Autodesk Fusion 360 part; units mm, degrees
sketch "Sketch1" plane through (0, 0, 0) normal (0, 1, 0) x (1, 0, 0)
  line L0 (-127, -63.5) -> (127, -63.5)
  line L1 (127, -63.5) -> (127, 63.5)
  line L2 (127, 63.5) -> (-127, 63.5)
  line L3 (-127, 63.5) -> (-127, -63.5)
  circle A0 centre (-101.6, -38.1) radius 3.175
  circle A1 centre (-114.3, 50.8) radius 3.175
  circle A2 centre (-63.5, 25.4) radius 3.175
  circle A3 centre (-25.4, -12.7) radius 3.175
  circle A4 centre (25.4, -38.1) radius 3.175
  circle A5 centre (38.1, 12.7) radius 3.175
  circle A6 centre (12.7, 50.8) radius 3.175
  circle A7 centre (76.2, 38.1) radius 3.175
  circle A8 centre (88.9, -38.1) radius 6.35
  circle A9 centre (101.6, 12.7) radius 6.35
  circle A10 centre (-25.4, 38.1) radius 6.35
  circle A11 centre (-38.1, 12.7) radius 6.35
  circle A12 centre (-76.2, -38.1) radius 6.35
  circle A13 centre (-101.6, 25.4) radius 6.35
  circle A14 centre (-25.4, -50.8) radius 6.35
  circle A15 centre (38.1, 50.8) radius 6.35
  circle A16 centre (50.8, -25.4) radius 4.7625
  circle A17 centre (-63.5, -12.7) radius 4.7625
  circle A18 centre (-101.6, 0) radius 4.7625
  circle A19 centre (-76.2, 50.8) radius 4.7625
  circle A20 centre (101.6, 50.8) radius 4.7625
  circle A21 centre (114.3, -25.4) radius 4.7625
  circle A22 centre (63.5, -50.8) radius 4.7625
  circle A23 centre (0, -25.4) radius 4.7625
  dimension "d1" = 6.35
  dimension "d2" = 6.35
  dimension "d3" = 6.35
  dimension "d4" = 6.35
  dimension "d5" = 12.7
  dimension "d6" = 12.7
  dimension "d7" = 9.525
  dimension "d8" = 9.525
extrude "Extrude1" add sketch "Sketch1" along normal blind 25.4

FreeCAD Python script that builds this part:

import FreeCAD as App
import Part
import Sketcher
from FreeCAD import Vector
Q = App.Units.Quantity


def add_polygon(sketch, points):
    """Adds a closed chain of lines whose ends are joined by coincident constraints."""
    first, n = sketch.GeometryCount, len(points)
    for a, b in zip(points, points[1:] + points[:1]):
        sketch.addGeometry(Part.LineSegment(App.Vector(*a, 0), App.Vector(*b, 0)), False)
    for i in range(n):
        sketch.addConstraint(Sketcher.Constraint("Coincident", first + i, 2, first + (i + 1) % n, 1))

doc = App.newDocument("Part")
body = doc.addObject("PartDesign::Body", "Body")

# Sketch on XZ plane
sketch1 = body.newObject("Sketcher::SketchObject", "Sketch")
sketch1.AttachmentSupport = (doc.getObject("XZ_Plane"), [""])
sketch1.MapMode = "FlatFace"
add_polygon(sketch1, [(-127, -63.5), (-127, 63.5), (127, 63.5), (127, -63.5)])  # lines 0-3
sketch1.addGeometry(Part.Circle(Vector(-101.6, 38.1, 0), Vector(0, 0, 1), 3.2), False)  # 4
sketch1.addGeometry(Part.Circle(Vector(-76.2, 38.1, 0), Vector(0, 0, 1), 6.3), False)  # 5
sketch1.addGeometry(Part.Circle(Vector(-25.4, 50.8, 0), Vector(0, 0, 1), 6.3), False)  # 6
sketch1.addGeometry(Part.Circle(Vector(-63.5, 12.7, 0), Vector(0, 0, 1), 4.8), False)  # 7
sketch1.addGeometry(Part.Circle(Vector(-25.4, 12.7, 0), Vector(0, 0, 1), 3.2), False)  # 8
sketch1.addGeometry(Part.Circle(Vector(25.4, 38.1, 0), Vector(0, 0, 1), 3.2), False)  # 9
sketch1.addGeometry(Part.Circle(Vector(63.5, 50.8, 0), Vector(0, 0, 1), 4.8), False)  # 10
sketch1.addGeometry(Part.Circle(Vector(88.9, 38.1, 0), Vector(0, 0, 1), 6.3), False)  # 11
sketch1.addGeometry(Part.Circle(Vector(0, 25.4, 0), Vector(0, 0, 1), 4.8), False)  # 12
sketch1.addGeometry(Part.Circle(Vector(50.8, 25.4, 0), Vector(0, 0, 1), 4.8), False)  # 13
sketch1.addGeometry(Part.Circle(Vector(114.3, 25.4, 0), Vector(0, 0, 1), 4.8), False)  # 14
sketch1.addGeometry(Part.Circle(Vector(-101.6, 0, 0), Vector(0, 0, 1), 4.8), False)  # 15
sketch1.addGeometry(Part.Circle(Vector(-101.6, -25.4, 0), Vector(0, 0, 1), 6.3), False)  # 16
sketch1.addGeometry(Part.Circle(Vector(-38.1, -12.7, 0), Vector(0, 0, 1), 6.3), False)  # 17
sketch1.addGeometry(Part.Circle(Vector(-63.5, -25.4, 0), Vector(0, 0, 1), 3.2), False)  # 18
sketch1.addGeometry(Part.Circle(Vector(-114.3, -50.8, 0), Vector(0, 0, 1), 3.2), False)  # 19
sketch1.addGeometry(Part.Circle(Vector(-76.2, -50.8, 0), Vector(0, 0, 1), 4.8), False)  # 20
sketch1.addGeometry(Part.Circle(Vector(-25.4, -38.1, 0), Vector(0, 0, 1), 6.3), False)  # 21
sketch1.addGeometry(Part.Circle(Vector(38.1, -12.7, 0), Vector(0, 0, 1), 3.2), False)  # 22
sketch1.addGeometry(Part.Circle(Vector(101.6, -12.7, 0), Vector(0, 0, 1), 6.3), False)  # 23
sketch1.addGeometry(Part.Circle(Vector(12.7, -50.8, 0), Vector(0, 0, 1), 3.2), False)  # 24
sketch1.addGeometry(Part.Circle(Vector(38.1, -50.8, 0), Vector(0, 0, 1), 6.3), False)  # 25
sketch1.addGeometry(Part.Circle(Vector(76.2, -38.1, 0), Vector(0, 0, 1), 3.2), False)  # 26
sketch1.addGeometry(Part.Circle(Vector(101.6, -50.8, 0), Vector(0, 0, 1), 4.8), False)  # 27
sketch1.addConstraint(Sketcher.Constraint("Vertical", 0))
sketch1.addConstraint(Sketcher.Constraint("Horizontal", 1))
sketch1.addConstraint(Sketcher.Constraint("Vertical", 2))
sketch1.addConstraint(Sketcher.Constraint("Horizontal", 3))
sketch1.addConstraint(Sketcher.Constraint("Equal", 5, 6))
sketch1.addConstraint(Sketcher.Constraint("Equal", 4, 8))
sketch1.addConstraint(Sketcher.Constraint("Equal", 8, 9))
sketch1.addConstraint(Sketcher.Constraint("Equal", 7, 10))
sketch1.addConstraint(Sketcher.Constraint("Equal", 6, 11))
sketch1.addConstraint(Sketcher.Constraint("Equal", 10, 12))
sketch1.addConstraint(Sketcher.Constraint("Equal", 12, 13))
sketch1.addConstraint(Sketcher.Constraint("Equal", 13, 14))
sketch1.addConstraint(Sketcher.Constraint("Equal", 14, 15))
sketch1.addConstraint(Sketcher.Constraint("Equal", 11, 16))
sketch1.addConstraint(Sketcher.Constraint("Equal", 16, 17))
sketch1.addConstraint(Sketcher.Constraint("Equal", 9, 18))
sketch1.addConstraint(Sketcher.Constraint("Equal", 18, 19))
sketch1.addConstraint(Sketcher.Constraint("Equal", 15, 20))
sketch1.addConstraint(Sketcher.Constraint("Equal", 17, 21))
sketch1.addConstraint(Sketcher.Constraint("Equal", 19, 22))
sketch1.addConstraint(Sketcher.Constraint("Equal", 21, 23))
sketch1.addConstraint(Sketcher.Constraint("Equal", 22, 24))
sketch1.addConstraint(Sketcher.Constraint("Equal", 23, 25))
sketch1.addConstraint(Sketcher.Constraint("Equal", 24, 26))
sketch1.addConstraint(Sketcher.Constraint("Equal", 20, 27))
sketch1.addConstraint(Sketcher.Constraint("Symmetric", 9, 3, 21, 3, -1, 1))
sketch1.addConstraint(Sketcher.Constraint("Symmetric", 5, 3, 26, 3, -1, 1))
sketch1.addConstraint(Sketcher.Constraint("Symmetric", 0, 2, 2, 2, -1, 1))
sketch1.addConstraint(Sketcher.Constraint("Symmetric", 17, 3, 22, 3, -2))
sketch1.addConstraint(Sketcher.Constraint("PointOnObject", 12, 3, -2))
sketch1.addConstraint(Sketcher.Constraint("PointOnObject", 15, 3, -1))
sketch1.addConstraint(Sketcher.Constraint("Horizontal", 4, 3, 5, 3))
sketch1.addConstraint(Sketcher.Constraint("Horizontal", 7, 3, 8, 3))
sketch1.addConstraint(Sketcher.Constraint("Horizontal", 5, 3, 9, 3))
sketch1.addConstraint(Sketcher.Constraint("Horizontal", 6, 3, 10, 3))
sketch1.addConstraint(Sketcher.Constraint("Horizontal", 9, 3, 11, 3))
sketch1.addConstraint(Sketcher.Constraint("Horizontal", 12, 3, 13, 3))
sketch1.addConstraint(Sketcher.Constraint("Horizontal", 13, 3, 14, 3))
sketch1.addConstraint(Sketcher.Constraint("Horizontal", 16, 3, 18, 3))
sketch1.addConstraint(Sketcher.Constraint("Horizontal", 19, 3, 20, 3))
sketch1.addConstraint(Sketcher.Constraint("Horizontal", 22, 3, 23, 3))
sketch1.addConstraint(Sketcher.Constraint("Horizontal", 20, 3, 24, 3))
sketch1.addConstraint(Sketcher.Constraint("Horizontal", 24, 3, 25, 3))
sketch1.addConstraint(Sketcher.Constraint("Horizontal", 25, 3, 27, 3))
sketch1.addConstraint(Sketcher.Constraint("Vertical", 6, 3, 8, 3))
sketch1.addConstraint(Sketcher.Constraint("Vertical", 4, 3, 15, 3))
sketch1.addConstraint(Sketcher.Constraint("Vertical", 15, 3, 16, 3))
sketch1.addConstraint(Sketcher.Constraint("Vertical", 7, 3, 18, 3))
sketch1.addConstraint(Sketcher.Constraint("Vertical", 5, 3, 20, 3))
sketch1.addConstraint(Sketcher.Constraint("Vertical", 8, 3, 21, 3))
sketch1.addConstraint(Sketcher.Constraint("Vertical", 22, 3, 25, 3))
sketch1.addConstraint(Sketcher.Constraint("Vertical", 23, 3, 27, 3))
sketch1.addConstraint(Sketcher.Constraint("Diameter", 5, Q("0.5 in")))
sketch1.addConstraint(Sketcher.Constraint("Diameter", 4, Q("0.25 in")))
sketch1.addConstraint(Sketcher.Constraint("Diameter", 7, Q("0.375 in")))
sketch1.addConstraint(Sketcher.Constraint("DistanceY", -1, 1, 7, 3, Q("0.5 in")))
sketch1.addConstraint(Sketcher.Constraint("DistanceY", 17, 3, -1, 1, Q("0.5 in")))
sketch1.addConstraint(Sketcher.Constraint("DistanceX", -1, 1, 24, 3, Q("0.5 in")))
sketch1.addConstraint(Sketcher.Constraint("DistanceY", 5, 3, 6, 3, Q("0.5 in")))
sketch1.addConstraint(Sketcher.Constraint("DistanceX", 5, 3, 7, 3, Q("0.5 in")))
sketch1.addConstraint(Sketcher.Constraint("DistanceY", 8, 3, 12, 3, Q("0.5 in")))
sketch1.addConstraint(Sketcher.Constraint("DistanceY", 12, 3, 9, 3, Q("0.5 in")))
sketch1.addConstraint(Sketcher.Constraint("DistanceX", 13, 3, 10, 3, Q("0.5 in")))
sketch1.addConstraint(Sketcher.Constraint("DistanceX", 17, 3, 8, 3, Q("0.5 in")))
sketch1.addConstraint(Sketcher.Constraint("DistanceY", 18, 3, 17, 3, Q("0.5 in")))
sketch1.addConstraint(Sketcher.Constraint("DistanceX", 19, 3, 16, 3, Q("0.5 in")))
sketch1.addConstraint(Sketcher.Constraint("DistanceY", 20, 3, 21, 3, Q("0.5 in")))
sketch1.addConstraint(Sketcher.Constraint("DistanceX", 22, 3, 13, 3, Q("0.5 in")))
sketch1.addConstraint(Sketcher.Constraint("DistanceX", 23, 3, 14, 3, Q("0.5 in")))
sketch1.addConstraint(Sketcher.Constraint("DistanceX", 11, 3, 23, 3, Q("0.5 in")))
sketch1.addConstraint(Sketcher.Constraint("DistanceX", 14, 3, 1, 2, Q("0.5 in")))
sketch1.addConstraint(Sketcher.Constraint("DistanceY", 10, 3, 1, 2, Q("0.5 in")))
sketch1.addConstraint(Sketcher.Constraint("DistanceX", 3, 2, 19, 3, Q("0.5 in")))
sketch1.addConstraint(Sketcher.Constraint("DistanceX", 1, 1, 1, 2, Q("10 in")))
sketch1.addConstraint(Sketcher.Constraint("DistanceX", 5, 3, -1, 1, Q("3 in")))
sketch1.addConstraint(Sketcher.Constraint("DistanceX", 6, 3, -1, 1, Q("1 in")))
pad1 = body.newObject("PartDesign::Pad", "Pad")
pad1.Profile = sketch1
pad1.Length = Q("1 in")
pad1.Reversed = True

doc.recompute()
